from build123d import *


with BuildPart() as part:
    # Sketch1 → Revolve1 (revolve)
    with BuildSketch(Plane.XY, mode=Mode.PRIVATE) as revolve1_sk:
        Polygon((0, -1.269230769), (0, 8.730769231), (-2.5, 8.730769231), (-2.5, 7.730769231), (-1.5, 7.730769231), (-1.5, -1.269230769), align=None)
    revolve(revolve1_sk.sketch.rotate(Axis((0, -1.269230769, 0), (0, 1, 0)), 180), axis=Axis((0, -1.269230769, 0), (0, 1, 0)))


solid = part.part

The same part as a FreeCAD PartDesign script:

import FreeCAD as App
import Part
import Sketcher
from FreeCAD import Vector


def add_polygon(sketch, points):
    """Adds a closed chain of lines whose ends are joined by coincident constraints."""
    first, n = sketch.GeometryCount, len(points)
    for a, b in zip(points, points[1:] + points[:1]):
        sketch.addGeometry(Part.LineSegment(App.Vector(*a, 0), App.Vector(*b, 0)), False)
    for i in range(n):
        sketch.addConstraint(Sketcher.Constraint("Coincident", first + i, 2, first + (i + 1) % n, 1))

doc = App.newDocument("Part")
body = doc.addObject("PartDesign::Body", "Body")

sketch1 = doc.addObject("Sketcher::SketchObject", "Sketch")
body.addObject(sketch1)
sketch1.AttachmentSupport = (doc.XY_Plane, [""])
sketch1.MapMode = "FlatFace"
add_polygon(sketch1, [(0, -1.3), (0, 8.7), (-2.5, 8.7), (-2.5, 7.7), (-1.5, 7.7), (-1.5, -1.3)])
sketch1.addConstraint([
    Sketcher.Constraint("Vertical", 0),
    Sketcher.Constraint("Horizontal", 1),
    Sketcher.Constraint("Vertical", 2),
    Sketcher.Constraint("Horizontal", 3),
    Sketcher.Constraint("Vertical", 4),
    Sketcher.Constraint("Horizontal", 5),
    Sketcher.Constraint("PointOnObject", 0, 2, -2),
    Sketcher.Constraint("Equal", 3, 2),
    Sketcher.Constraint("DistanceX", 3, 1, 3, 2, 1.0),
    Sketcher.Constraint("DistanceY", 0, 1, 0, 2, 10.0),
    Sketcher.Constraint("DistanceX", 1, 2, 1, 1, 2.5),
    Sketcher.Constraint("DistanceY", -1, 1, 0, 2, 8.730769),
])
revolution = doc.addObject("PartDesign::Revolution", "Revolution")
body.addObject(revolution)
revolution.Profile = sketch1
revolution.ReferenceAxis = (sketch1, ["V_Axis"])
revolution.Angle = 360

doc.recompute()
